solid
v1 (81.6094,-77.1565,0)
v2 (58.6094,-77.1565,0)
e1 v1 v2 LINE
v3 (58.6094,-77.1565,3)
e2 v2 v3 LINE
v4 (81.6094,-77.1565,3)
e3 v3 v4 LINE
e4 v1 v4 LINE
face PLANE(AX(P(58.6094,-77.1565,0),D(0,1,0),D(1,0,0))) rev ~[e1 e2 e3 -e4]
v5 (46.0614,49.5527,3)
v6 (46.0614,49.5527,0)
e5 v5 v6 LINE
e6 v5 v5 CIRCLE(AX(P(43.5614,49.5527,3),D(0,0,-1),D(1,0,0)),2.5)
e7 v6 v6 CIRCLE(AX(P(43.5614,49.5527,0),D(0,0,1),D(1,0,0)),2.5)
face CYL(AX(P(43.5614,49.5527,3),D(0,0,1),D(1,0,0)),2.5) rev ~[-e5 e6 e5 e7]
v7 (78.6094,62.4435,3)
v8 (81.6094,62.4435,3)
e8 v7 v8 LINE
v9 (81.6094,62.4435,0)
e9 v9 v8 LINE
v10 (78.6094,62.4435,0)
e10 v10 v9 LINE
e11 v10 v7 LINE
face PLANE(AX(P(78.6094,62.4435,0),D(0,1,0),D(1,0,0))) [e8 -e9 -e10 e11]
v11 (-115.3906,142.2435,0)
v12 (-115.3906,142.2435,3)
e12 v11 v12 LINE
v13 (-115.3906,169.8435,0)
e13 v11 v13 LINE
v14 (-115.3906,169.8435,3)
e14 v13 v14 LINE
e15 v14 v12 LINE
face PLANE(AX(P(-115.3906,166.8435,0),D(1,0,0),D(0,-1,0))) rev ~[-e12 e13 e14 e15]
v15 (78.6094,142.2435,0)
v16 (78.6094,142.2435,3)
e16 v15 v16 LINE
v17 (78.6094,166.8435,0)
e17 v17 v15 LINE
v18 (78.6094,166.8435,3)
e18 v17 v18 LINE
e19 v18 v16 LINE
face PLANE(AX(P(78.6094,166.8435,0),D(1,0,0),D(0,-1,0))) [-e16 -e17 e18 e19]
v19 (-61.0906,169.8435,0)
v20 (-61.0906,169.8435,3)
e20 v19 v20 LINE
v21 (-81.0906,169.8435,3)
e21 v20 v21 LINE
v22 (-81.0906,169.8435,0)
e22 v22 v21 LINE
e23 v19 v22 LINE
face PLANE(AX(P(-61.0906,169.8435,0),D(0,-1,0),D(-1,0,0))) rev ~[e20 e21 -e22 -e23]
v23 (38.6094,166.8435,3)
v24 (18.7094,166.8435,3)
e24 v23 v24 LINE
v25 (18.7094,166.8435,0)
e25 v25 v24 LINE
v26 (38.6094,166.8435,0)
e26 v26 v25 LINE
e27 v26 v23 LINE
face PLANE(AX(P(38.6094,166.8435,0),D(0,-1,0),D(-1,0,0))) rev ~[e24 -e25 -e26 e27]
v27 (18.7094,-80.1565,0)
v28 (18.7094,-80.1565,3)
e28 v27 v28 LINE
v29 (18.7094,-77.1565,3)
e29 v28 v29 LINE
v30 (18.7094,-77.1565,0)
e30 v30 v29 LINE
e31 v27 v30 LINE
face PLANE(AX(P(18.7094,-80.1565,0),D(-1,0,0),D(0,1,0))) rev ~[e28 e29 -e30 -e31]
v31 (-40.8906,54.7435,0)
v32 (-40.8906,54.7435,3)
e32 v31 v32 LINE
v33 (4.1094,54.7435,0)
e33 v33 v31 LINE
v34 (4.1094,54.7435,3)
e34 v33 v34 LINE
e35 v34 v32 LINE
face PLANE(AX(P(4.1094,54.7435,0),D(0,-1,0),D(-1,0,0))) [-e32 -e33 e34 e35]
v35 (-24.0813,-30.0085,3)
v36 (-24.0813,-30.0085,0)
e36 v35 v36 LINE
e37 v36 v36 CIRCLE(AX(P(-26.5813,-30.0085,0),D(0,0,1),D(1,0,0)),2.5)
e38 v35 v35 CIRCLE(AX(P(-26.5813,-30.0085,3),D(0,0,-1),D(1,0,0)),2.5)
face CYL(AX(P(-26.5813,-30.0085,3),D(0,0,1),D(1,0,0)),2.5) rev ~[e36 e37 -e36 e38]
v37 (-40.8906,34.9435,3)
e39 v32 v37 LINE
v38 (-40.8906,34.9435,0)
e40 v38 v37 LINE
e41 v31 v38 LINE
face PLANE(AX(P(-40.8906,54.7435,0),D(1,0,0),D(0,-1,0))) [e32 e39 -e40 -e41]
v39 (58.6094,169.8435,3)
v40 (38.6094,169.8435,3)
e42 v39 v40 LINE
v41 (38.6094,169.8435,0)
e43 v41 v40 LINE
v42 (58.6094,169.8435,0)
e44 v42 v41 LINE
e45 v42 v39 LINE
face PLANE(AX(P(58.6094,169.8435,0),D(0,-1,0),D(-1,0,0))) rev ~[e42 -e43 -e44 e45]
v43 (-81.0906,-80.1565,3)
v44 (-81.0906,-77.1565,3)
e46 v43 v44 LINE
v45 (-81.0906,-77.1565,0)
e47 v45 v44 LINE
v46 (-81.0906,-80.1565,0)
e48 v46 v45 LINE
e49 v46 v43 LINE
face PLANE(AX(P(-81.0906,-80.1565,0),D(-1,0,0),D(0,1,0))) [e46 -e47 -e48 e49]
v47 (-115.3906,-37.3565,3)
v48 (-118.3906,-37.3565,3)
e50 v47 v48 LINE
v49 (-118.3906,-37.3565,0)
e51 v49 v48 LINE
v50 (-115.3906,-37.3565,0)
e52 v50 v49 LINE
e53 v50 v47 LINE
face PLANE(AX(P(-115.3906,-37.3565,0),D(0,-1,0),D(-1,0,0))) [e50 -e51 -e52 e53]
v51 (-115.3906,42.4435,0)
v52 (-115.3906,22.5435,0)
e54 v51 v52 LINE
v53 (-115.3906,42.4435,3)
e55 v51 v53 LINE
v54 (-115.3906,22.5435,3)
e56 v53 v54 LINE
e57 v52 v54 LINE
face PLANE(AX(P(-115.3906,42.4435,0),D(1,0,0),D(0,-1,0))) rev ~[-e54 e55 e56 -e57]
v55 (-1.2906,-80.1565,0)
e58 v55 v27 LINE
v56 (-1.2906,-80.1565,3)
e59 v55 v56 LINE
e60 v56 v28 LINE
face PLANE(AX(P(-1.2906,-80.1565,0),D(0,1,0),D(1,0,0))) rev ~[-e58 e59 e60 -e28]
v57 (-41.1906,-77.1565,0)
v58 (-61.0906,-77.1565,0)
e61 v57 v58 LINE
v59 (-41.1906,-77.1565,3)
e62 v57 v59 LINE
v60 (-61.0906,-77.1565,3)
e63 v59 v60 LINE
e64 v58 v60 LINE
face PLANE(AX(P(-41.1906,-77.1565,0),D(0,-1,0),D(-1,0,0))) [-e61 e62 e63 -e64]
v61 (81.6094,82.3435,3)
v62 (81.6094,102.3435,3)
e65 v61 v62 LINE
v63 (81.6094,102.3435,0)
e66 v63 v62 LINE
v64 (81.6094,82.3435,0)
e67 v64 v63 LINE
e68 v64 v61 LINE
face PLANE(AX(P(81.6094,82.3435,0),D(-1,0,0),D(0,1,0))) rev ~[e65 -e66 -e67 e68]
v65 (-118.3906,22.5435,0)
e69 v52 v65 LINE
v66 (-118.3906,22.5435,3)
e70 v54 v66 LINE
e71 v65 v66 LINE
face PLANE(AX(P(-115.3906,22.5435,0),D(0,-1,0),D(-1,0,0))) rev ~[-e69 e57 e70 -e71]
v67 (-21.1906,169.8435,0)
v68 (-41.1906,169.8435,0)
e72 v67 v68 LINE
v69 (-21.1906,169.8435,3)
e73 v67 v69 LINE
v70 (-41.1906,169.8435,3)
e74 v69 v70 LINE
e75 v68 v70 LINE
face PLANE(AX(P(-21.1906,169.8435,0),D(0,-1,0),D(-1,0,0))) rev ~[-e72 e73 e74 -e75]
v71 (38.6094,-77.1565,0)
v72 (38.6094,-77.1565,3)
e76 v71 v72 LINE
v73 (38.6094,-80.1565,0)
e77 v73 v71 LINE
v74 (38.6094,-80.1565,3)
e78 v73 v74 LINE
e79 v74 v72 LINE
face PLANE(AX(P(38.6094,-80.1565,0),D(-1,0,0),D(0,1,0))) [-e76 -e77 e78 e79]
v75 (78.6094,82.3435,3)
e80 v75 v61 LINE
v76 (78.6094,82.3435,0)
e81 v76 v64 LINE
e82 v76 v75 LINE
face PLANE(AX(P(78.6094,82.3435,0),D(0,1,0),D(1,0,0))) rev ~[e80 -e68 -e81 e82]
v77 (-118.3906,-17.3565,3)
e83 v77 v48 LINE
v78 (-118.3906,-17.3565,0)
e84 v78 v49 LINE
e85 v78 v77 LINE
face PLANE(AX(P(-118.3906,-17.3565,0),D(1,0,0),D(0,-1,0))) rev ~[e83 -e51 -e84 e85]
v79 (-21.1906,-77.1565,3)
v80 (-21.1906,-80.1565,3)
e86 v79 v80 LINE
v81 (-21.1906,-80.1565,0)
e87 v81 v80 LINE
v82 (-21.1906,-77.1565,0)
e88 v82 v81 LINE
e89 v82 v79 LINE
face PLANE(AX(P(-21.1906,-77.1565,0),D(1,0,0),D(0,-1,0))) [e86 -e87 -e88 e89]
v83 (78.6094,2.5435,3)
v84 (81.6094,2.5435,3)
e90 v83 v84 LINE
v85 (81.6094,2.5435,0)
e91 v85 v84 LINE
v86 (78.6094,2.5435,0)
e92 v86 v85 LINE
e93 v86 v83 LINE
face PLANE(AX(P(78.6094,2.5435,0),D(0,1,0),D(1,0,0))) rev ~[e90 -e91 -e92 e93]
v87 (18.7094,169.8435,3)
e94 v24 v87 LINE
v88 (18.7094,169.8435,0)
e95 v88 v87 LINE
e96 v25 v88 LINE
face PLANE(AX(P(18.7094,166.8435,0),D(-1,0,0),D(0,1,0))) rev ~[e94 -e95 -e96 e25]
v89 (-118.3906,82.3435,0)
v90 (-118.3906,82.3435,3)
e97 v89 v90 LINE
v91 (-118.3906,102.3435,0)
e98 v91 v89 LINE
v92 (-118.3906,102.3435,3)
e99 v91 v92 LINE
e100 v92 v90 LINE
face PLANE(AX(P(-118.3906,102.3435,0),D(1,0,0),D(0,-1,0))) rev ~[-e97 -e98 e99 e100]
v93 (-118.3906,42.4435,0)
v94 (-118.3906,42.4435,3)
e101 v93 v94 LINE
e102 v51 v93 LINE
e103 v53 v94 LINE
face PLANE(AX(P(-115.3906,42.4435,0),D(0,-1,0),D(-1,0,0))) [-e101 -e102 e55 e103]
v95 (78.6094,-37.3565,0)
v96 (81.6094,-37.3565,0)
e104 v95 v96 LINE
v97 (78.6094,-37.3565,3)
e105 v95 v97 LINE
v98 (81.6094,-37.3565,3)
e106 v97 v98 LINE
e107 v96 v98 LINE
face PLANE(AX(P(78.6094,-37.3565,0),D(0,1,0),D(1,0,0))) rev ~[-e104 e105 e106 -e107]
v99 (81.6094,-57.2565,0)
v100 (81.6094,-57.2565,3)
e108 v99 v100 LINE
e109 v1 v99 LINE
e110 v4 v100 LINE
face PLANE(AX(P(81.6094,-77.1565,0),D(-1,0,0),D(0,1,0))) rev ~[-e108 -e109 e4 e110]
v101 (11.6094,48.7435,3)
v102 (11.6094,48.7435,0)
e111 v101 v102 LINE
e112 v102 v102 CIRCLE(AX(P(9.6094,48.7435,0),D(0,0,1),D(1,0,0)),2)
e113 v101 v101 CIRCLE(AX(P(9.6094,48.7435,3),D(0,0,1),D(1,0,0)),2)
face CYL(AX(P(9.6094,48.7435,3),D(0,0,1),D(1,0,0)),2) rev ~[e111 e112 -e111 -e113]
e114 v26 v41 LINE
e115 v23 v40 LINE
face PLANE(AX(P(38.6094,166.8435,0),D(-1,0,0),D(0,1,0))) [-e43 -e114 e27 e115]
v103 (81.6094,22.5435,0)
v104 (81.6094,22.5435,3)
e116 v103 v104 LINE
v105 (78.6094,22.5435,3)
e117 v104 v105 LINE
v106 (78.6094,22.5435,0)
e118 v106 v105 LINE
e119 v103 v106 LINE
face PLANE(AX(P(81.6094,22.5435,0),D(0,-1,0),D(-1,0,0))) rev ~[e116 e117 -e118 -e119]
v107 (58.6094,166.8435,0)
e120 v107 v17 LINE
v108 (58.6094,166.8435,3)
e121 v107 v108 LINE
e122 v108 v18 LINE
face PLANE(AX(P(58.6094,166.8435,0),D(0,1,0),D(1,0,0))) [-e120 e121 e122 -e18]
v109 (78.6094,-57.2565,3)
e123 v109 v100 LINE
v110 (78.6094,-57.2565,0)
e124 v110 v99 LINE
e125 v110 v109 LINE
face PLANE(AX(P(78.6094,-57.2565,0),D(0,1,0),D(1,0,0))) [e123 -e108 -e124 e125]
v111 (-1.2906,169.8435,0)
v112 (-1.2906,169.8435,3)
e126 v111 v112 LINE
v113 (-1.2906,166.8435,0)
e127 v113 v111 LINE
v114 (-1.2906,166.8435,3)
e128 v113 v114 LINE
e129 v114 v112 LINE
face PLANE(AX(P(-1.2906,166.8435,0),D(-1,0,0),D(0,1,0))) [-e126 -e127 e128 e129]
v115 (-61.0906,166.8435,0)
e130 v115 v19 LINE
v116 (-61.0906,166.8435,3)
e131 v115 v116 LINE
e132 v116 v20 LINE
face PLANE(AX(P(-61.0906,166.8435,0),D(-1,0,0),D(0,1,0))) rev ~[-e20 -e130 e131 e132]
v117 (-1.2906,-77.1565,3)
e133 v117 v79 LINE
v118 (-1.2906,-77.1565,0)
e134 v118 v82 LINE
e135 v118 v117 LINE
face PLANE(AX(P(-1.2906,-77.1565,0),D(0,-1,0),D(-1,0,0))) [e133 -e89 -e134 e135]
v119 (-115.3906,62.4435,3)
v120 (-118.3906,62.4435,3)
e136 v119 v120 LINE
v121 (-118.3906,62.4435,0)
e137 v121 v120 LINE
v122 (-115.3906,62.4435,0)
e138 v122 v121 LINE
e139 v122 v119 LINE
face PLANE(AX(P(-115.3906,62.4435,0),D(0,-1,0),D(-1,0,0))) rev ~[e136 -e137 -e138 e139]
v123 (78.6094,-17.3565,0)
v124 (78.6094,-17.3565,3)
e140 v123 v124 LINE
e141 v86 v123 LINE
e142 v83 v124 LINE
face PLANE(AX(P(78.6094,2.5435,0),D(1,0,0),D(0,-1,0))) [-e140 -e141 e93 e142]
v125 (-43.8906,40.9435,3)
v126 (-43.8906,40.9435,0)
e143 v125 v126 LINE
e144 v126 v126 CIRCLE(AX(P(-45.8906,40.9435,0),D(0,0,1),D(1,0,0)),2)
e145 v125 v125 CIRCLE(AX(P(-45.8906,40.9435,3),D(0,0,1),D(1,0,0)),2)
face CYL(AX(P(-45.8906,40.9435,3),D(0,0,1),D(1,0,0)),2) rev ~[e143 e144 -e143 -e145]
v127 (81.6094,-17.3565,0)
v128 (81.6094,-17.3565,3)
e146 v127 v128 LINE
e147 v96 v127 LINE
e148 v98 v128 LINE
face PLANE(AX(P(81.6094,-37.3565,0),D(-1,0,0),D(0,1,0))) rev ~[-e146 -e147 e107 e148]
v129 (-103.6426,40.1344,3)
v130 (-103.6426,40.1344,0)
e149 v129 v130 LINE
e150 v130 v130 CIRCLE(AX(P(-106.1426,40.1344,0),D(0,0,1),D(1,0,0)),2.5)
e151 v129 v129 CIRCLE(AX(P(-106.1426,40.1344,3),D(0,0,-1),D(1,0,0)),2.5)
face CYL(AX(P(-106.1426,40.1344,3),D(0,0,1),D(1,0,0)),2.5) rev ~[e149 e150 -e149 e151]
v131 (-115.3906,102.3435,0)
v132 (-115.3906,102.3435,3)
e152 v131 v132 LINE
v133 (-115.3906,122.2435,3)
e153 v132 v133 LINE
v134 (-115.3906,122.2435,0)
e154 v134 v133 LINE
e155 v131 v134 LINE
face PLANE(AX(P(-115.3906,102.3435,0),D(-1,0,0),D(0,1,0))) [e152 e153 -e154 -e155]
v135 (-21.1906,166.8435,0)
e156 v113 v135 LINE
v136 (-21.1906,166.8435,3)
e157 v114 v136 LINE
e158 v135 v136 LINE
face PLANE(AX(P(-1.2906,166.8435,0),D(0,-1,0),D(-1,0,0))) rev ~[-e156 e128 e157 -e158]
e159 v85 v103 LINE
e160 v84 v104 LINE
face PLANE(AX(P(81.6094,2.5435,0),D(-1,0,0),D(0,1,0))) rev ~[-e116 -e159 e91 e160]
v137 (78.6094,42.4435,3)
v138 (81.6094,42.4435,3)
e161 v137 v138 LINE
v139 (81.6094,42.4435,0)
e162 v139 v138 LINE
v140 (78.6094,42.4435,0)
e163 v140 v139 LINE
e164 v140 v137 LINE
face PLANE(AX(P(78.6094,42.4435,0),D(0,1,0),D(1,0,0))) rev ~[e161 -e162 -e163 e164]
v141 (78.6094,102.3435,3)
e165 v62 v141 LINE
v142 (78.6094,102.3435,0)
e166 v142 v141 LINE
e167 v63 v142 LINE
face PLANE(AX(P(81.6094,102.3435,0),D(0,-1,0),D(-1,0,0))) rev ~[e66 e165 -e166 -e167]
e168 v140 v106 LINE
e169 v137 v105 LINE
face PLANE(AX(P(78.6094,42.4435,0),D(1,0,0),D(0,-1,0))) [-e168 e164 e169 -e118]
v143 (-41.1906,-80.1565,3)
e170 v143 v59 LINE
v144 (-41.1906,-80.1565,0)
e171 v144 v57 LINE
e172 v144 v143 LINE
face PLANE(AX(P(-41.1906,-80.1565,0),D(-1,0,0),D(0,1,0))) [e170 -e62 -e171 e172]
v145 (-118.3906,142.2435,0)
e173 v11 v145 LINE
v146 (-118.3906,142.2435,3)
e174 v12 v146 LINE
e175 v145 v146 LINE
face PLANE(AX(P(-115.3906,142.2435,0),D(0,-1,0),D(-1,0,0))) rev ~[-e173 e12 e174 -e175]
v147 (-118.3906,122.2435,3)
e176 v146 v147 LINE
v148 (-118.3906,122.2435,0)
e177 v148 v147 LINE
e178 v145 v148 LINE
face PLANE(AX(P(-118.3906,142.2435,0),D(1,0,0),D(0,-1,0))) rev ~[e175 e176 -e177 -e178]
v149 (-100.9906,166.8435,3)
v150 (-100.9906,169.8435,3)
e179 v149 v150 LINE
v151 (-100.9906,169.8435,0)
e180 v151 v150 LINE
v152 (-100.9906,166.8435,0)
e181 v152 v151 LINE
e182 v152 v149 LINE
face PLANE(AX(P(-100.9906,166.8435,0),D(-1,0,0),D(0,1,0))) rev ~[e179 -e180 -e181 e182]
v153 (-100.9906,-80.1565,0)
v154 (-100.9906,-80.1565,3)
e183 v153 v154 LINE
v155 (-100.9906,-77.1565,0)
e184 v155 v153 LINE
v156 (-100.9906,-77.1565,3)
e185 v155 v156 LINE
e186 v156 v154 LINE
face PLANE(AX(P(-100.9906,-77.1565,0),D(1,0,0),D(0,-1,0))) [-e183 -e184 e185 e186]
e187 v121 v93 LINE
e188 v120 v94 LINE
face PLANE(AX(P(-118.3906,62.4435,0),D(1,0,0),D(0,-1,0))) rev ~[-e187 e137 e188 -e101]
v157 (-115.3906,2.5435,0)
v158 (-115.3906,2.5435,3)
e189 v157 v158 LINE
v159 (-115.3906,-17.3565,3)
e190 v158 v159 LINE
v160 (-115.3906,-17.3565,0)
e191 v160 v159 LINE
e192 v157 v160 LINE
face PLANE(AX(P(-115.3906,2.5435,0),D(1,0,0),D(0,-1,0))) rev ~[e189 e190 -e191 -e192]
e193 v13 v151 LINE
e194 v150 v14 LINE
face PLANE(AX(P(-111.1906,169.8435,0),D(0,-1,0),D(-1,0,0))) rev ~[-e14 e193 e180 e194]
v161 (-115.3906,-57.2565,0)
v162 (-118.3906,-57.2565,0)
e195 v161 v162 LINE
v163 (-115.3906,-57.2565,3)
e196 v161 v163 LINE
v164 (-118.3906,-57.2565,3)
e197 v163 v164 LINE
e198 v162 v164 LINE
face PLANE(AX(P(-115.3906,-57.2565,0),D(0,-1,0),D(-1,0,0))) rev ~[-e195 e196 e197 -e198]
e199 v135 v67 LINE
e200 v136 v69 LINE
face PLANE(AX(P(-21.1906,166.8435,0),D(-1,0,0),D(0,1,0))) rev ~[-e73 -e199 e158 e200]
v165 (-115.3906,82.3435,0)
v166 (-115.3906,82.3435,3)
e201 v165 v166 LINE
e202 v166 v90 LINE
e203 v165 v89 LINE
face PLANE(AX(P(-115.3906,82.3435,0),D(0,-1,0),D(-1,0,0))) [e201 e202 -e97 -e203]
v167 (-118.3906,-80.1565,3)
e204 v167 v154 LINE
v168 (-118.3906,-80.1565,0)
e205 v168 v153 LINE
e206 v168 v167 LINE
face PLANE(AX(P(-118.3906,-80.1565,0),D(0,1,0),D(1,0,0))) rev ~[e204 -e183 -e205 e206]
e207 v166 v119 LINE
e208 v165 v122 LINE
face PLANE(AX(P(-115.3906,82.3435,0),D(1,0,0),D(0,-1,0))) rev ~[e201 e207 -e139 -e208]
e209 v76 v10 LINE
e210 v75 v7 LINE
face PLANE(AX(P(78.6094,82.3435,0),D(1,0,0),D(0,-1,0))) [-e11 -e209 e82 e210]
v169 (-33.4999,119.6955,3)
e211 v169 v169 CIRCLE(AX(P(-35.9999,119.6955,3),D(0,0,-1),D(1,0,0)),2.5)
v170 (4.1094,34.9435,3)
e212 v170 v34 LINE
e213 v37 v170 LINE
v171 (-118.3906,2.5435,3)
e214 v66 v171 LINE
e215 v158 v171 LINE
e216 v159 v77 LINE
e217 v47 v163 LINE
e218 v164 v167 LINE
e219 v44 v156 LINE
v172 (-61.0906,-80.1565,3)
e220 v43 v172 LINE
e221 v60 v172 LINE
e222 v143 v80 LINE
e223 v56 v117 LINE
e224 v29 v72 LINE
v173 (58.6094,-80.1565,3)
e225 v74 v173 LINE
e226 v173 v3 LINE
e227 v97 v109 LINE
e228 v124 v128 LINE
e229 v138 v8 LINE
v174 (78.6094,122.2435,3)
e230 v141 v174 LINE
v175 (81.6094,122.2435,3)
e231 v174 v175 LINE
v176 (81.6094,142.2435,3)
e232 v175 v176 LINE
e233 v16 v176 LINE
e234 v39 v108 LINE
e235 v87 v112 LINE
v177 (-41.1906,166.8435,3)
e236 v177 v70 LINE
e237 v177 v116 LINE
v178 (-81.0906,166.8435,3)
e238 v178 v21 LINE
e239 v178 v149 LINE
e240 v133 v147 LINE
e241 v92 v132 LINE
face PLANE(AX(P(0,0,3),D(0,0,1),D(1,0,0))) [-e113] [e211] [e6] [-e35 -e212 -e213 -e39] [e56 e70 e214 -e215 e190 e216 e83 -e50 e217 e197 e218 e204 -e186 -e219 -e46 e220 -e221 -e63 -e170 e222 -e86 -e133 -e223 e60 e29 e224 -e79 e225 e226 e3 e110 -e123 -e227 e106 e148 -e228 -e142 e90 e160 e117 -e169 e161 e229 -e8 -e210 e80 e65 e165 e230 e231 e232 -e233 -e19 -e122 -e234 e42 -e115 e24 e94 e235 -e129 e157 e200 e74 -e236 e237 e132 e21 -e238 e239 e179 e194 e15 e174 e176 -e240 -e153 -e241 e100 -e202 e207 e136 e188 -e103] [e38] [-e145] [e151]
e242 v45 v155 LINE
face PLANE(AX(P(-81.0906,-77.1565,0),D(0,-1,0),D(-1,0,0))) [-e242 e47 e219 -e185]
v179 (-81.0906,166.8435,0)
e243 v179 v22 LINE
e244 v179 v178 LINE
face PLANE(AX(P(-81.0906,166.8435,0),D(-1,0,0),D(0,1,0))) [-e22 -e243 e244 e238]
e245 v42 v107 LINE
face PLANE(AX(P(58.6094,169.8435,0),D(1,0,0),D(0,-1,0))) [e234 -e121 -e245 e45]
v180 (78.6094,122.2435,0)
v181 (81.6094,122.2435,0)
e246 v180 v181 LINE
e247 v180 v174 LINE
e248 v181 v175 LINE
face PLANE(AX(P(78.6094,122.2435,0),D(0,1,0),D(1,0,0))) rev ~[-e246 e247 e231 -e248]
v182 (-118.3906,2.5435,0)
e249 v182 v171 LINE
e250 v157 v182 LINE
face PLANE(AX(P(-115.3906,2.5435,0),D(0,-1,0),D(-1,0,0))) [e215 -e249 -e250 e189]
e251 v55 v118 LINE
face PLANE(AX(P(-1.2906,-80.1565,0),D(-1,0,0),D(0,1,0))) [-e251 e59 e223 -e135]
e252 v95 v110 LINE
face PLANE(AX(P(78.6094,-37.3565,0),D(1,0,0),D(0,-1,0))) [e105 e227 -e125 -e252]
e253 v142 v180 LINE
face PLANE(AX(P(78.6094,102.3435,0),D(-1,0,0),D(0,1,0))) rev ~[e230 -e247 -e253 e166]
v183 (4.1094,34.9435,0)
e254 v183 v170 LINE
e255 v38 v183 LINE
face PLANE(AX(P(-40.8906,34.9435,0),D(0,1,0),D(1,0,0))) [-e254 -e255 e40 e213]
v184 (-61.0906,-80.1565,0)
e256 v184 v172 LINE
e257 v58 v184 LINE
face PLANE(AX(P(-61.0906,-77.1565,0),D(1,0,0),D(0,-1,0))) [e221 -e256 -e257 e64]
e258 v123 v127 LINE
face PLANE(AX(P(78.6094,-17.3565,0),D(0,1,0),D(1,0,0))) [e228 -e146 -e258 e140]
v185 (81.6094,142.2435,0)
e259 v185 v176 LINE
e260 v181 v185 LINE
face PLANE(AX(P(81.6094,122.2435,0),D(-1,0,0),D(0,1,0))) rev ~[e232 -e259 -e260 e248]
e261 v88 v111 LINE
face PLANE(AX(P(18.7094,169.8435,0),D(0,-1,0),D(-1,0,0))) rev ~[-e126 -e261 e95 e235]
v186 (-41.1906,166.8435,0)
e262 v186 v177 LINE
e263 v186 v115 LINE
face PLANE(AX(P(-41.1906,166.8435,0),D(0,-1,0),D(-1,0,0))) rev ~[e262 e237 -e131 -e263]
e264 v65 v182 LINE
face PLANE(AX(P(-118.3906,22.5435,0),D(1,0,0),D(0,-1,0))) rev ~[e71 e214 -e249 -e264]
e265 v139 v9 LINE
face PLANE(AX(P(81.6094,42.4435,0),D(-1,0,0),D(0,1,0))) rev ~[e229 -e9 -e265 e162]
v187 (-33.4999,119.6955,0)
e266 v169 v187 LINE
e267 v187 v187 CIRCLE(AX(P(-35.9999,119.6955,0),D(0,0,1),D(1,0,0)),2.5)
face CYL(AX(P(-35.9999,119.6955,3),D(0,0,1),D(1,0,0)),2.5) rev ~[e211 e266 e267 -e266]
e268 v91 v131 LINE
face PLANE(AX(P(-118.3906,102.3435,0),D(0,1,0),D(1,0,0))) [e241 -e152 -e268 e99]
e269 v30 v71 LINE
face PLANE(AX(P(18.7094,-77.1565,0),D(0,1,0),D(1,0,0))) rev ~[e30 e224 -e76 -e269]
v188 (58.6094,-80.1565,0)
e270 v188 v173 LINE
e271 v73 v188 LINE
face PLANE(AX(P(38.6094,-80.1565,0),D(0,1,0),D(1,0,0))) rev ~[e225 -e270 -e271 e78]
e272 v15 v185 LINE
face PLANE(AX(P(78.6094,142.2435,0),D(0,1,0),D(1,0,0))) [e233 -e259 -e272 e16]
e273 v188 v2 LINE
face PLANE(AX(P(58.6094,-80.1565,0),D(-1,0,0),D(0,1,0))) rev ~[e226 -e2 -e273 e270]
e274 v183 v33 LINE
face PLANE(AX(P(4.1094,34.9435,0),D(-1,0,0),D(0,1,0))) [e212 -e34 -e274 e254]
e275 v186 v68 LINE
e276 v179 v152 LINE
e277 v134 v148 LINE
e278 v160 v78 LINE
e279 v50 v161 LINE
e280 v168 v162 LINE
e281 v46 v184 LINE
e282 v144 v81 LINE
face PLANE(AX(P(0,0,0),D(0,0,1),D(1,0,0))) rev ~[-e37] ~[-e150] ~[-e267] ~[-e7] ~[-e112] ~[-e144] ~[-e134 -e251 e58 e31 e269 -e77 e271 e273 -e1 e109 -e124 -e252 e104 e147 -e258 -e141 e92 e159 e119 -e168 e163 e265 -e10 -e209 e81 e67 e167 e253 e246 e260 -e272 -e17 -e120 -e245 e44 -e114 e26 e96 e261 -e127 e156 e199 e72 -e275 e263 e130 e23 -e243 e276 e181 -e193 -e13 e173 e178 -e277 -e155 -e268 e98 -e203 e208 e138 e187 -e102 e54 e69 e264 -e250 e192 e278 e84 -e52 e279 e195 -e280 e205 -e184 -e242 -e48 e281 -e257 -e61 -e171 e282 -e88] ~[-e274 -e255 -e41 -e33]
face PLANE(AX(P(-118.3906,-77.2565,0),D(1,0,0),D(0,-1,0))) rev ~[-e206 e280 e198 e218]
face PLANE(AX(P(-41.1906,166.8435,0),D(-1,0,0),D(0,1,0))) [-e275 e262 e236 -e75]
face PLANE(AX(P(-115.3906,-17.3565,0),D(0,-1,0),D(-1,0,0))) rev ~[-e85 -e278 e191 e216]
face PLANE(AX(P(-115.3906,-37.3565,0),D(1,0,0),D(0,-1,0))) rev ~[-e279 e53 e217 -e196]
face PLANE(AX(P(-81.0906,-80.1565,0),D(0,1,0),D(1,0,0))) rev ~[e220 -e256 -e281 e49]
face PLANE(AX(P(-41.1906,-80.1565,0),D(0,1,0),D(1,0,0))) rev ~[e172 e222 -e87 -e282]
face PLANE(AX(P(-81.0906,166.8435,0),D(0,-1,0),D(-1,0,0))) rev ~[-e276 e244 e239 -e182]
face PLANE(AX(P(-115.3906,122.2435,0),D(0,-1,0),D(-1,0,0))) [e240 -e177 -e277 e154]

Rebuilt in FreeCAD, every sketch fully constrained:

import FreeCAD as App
import Part
import Sketcher
Q = App.Units.Quantity

doc = App.newDocument("Part")
body = doc.addObject("PartDesign::Body", "Body")

# Sketch on XY plane
sketch1 = body.newObject("Sketcher::SketchObject", "Sketch")
sketch1.AttachmentSupport = (doc.getObject("XY_Plane"), [""])
sketch1.MapMode = "FlatFace"
sketch1.addGeometry(Part.LineSegment(App.Vector(58.6, 166.8, 0), App.Vector(58.6, 169.8, 0)), False)
sketch1.addGeometry(Part.LineSegment(App.Vector(58.6, 169.8, 0), App.Vector(38.6, 169.8, 0)), False)
sketch1.addGeometry(Part.LineSegment(App.Vector(38.6, 169.8, 0), App.Vector(38.6, 166.8, 0)), False)
sketch1.addGeometry(Part.LineSegment(App.Vector(38.6, 166.8, 0), App.Vector(18.7, 166.8, 0)), False)
sketch1.addGeometry(Part.LineSegment(App.Vector(18.7, 166.8, 0), App.Vector(18.7, 169.8, 0)), False)
sketch1.addGeometry(Part.LineSegment(App.Vector(18.7, 169.8, 0), App.Vector(-1.3, 169.8, 0)), False)
sketch1.addGeometry(Part.LineSegment(App.Vector(-1.3, 169.8, 0), App.Vector(-1.3, 166.8, 0)), False)
sketch1.addGeometry(Part.LineSegment(App.Vector(-1.3, 166.8, 0), App.Vector(-21.2, 166.8, 0)), False)
sketch1.addGeometry(Part.LineSegment(App.Vector(-21.2, 166.8, 0), App.Vector(-21.2, 169.8, 0)), False)
sketch1.addGeometry(Part.LineSegment(App.Vector(-21.2, 169.8, 0), App.Vector(-41.2, 169.8, 0)), False)
sketch1.addGeometry(Part.LineSegment(App.Vector(-41.2, 169.8, 0), App.Vector(-41.2, 166.8, 0)), False)
sketch1.addGeometry(Part.LineSegment(App.Vector(-41.2, 166.8, 0), App.Vector(-61.1, 166.8, 0)), False)
sketch1.addGeometry(Part.LineSegment(App.Vector(-61.1, 166.8, 0), App.Vector(-61.1, 169.8, 0)), False)
sketch1.addGeometry(Part.LineSegment(App.Vector(-61.1, 169.8, 0), App.Vector(-81.1, 169.8, 0)), False)
sketch1.addGeometry(Part.LineSegment(App.Vector(-81.1, 169.8, 0), App.Vector(-81.1, 166.8, 0)), False)
sketch1.addGeometry(Part.LineSegment(App.Vector(-81.1, 166.8, 0), App.Vector(-101, 166.8, 0)), False)
sketch1.addGeometry(Part.LineSegment(App.Vector(-101, 166.8, 0), App.Vector(-101, 169.8, 0)), False)
sketch1.addGeometry(Part.LineSegment(App.Vector(-101, 169.8, 0), App.Vector(-115.4, 169.8, 0)), False)
sketch1.addGeometry(Part.LineSegment(App.Vector(-115.4, 169.8, 0), App.Vector(-115.4, 142.2, 0)), False)
sketch1.addGeometry(Part.LineSegment(App.Vector(-115.4, 142.2, 0), App.Vector(-118.4, 142.2, 0)), False)
sketch1.addGeometry(Part.LineSegment(App.Vector(-118.4, 142.2, 0), App.Vector(-118.4, 122.2, 0)), False)
sketch1.addGeometry(Part.LineSegment(App.Vector(-118.4, 122.2, 0), App.Vector(-115.4, 122.2, 0)), False)
sketch1.addGeometry(Part.LineSegment(App.Vector(-115.4, 122.2, 0), App.Vector(-115.4, 102.3, 0)), False)
sketch1.addGeometry(Part.LineSegment(App.Vector(-115.4, 102.3, 0), App.Vector(-118.4, 102.3, 0)), False)
sketch1.addGeometry(Part.LineSegment(App.Vector(-118.4, 102.3, 0), App.Vector(-118.4, 82.3, 0)), False)
sketch1.addGeometry(Part.LineSegment(App.Vector(-118.4, 82.3, 0), App.Vector(-115.4, 82.3, 0)), False)
sketch1.addGeometry(Part.LineSegment(App.Vector(-115.4, 82.3, 0), App.Vector(-115.4, 62.4, 0)), False)
sketch1.addGeometry(Part.LineSegment(App.Vector(-115.4, 62.4, 0), App.Vector(-118.4, 62.4, 0)), False)
sketch1.addGeometry(Part.LineSegment(App.Vector(-118.4, 62.4, 0), App.Vector(-118.4, 42.4, 0)), False)
sketch1.addGeometry(Part.LineSegment(App.Vector(-118.4, 42.4, 0), App.Vector(-115.4, 42.4, 0)), False)
sketch1.addGeometry(Part.LineSegment(App.Vector(-115.4, 42.4, 0), App.Vector(-115.4, 22.5, 0)), False)
sketch1.addGeometry(Part.LineSegment(App.Vector(-115.4, 22.5, 0), App.Vector(-118.4, 22.5, 0)), False)
sketch1.addGeometry(Part.LineSegment(App.Vector(-118.4, 22.5, 0), App.Vector(-118.4, 2.5, 0)), False)
sketch1.addGeometry(Part.LineSegment(App.Vector(-118.4, 2.5, 0), App.Vector(-115.4, 2.5, 0)), False)
sketch1.addGeometry(Part.LineSegment(App.Vector(-115.4, 2.5, 0), App.Vector(-115.4, -17.4, 0)), False)
sketch1.addGeometry(Part.LineSegment(App.Vector(-115.4, -17.4, 0), App.Vector(-118.4, -17.4, 0)), False)
sketch1.addGeometry(Part.LineSegment(App.Vector(-118.4, -17.4, 0), App.Vector(-118.4, -37.4, 0)), False)
sketch1.addGeometry(Part.LineSegment(App.Vector(-118.4, -37.4, 0), App.Vector(-115.4, -37.4, 0)), False)
sketch1.addGeometry(Part.LineSegment(App.Vector(-115.4, -37.4, 0), App.Vector(-115.4, -57.3, 0)), False)
sketch1.addGeometry(Part.LineSegment(App.Vector(-115.4, -57.3, 0), App.Vector(-118.4, -57.3, 0)), False)
sketch1.addGeometry(Part.LineSegment(App.Vector(-118.4, -57.3, 0), App.Vector(-118.4, -80.2, 0)), False)
sketch1.addGeometry(Part.LineSegment(App.Vector(-118.4, -80.2, 0), App.Vector(-101, -80.2, 0)), False)
sketch1.addGeometry(Part.LineSegment(App.Vector(-101, -80.2, 0), App.Vector(-101, -77.2, 0)), False)
sketch1.addGeometry(Part.LineSegment(App.Vector(-101, -77.2, 0), App.Vector(-81.1, -77.2, 0)), False)
sketch1.addGeometry(Part.LineSegment(App.Vector(-81.1, -77.2, 0), App.Vector(-81.1, -80.2, 0)), False)
sketch1.addGeometry(Part.LineSegment(App.Vector(-81.1, -80.2, 0), App.Vector(-61.1, -80.2, 0)), False)
sketch1.addGeometry(Part.LineSegment(App.Vector(-61.1, -80.2, 0), App.Vector(-61.1, -77.2, 0)), False)
sketch1.addGeometry(Part.LineSegment(App.Vector(-61.1, -77.2, 0), App.Vector(-41.2, -77.2, 0)), False)
sketch1.addGeometry(Part.LineSegment(App.Vector(-41.2, -77.2, 0), App.Vector(-41.2, -80.2, 0)), False)
sketch1.addGeometry(Part.LineSegment(App.Vector(-41.2, -80.2, 0), App.Vector(-21.2, -80.2, 0)), False)
sketch1.addGeometry(Part.LineSegment(App.Vector(-21.2, -80.2, 0), App.Vector(-21.2, -77.2, 0)), False)
sketch1.addGeometry(Part.LineSegment(App.Vector(-21.2, -77.2, 0), App.Vector(-1.3, -77.2, 0)), False)
sketch1.addGeometry(Part.LineSegment(App.Vector(-1.3, -77.2, 0), App.Vector(-1.3, -80.2, 0)), False)
sketch1.addGeometry(Part.LineSegment(App.Vector(-1.3, -80.2, 0), App.Vector(18.7, -80.2, 0)), False)
sketch1.addGeometry(Part.LineSegment(App.Vector(18.7, -80.2, 0), App.Vector(18.7, -77.2, 0)), False)
sketch1.addGeometry(Part.LineSegment(App.Vector(18.7, -77.2, 0), App.Vector(38.6, -77.2, 0)), False)
sketch1.addGeometry(Part.LineSegment(App.Vector(38.6, -77.2, 0), App.Vector(38.6, -80.2, 0)), False)
sketch1.addGeometry(Part.LineSegment(App.Vector(38.6, -80.2, 0), App.Vector(58.6, -80.2, 0)), False)
sketch1.addGeometry(Part.LineSegment(App.Vector(58.6, -80.2, 0), App.Vector(58.6, -77.2, 0)), False)
sketch1.addGeometry(Part.LineSegment(App.Vector(58.6, -77.2, 0), App.Vector(81.6, -77.2, 0)), False)
sketch1.addGeometry(Part.LineSegment(App.Vector(81.6, -77.2, 0), App.Vector(81.6, -57.3, 0)), False)
sketch1.addGeometry(Part.LineSegment(App.Vector(81.6, -57.3, 0), App.Vector(78.6, -57.3, 0)), False)
sketch1.addGeometry(Part.LineSegment(App.Vector(78.6, -57.3, 0), App.Vector(78.6, -37.4, 0)), False)
sketch1.addGeometry(Part.LineSegment(App.Vector(78.6, -37.4, 0), App.Vector(81.6, -37.4, 0)), False)
sketch1.addGeometry(Part.LineSegment(App.Vector(81.6, -37.4, 0), App.Vector(81.6, -17.4, 0)), False)
sketch1.addGeometry(Part.LineSegment(App.Vector(81.6, -17.4, 0), App.Vector(78.6, -17.4, 0)), False)
sketch1.addGeometry(Part.LineSegment(App.Vector(78.6, -17.4, 0), App.Vector(78.6, 2.5, 0)), False)
sketch1.addGeometry(Part.LineSegment(App.Vector(78.6, 2.5, 0), App.Vector(81.6, 2.5, 0)), False)
sketch1.addGeometry(Part.LineSegment(App.Vector(81.6, 2.5, 0), App.Vector(81.6, 22.5, 0)), False)
sketch1.addGeometry(Part.LineSegment(App.Vector(81.6, 22.5, 0), App.Vector(78.6, 22.5, 0)), False)
sketch1.addGeometry(Part.LineSegment(App.Vector(78.6, 22.5, 0), App.Vector(78.6, 42.4, 0)), False)
sketch1.addGeometry(Part.LineSegment(App.Vector(78.6, 42.4, 0), App.Vector(81.6, 42.4, 0)), False)
sketch1.addGeometry(Part.LineSegment(App.Vector(81.6, 42.4, 0), App.Vector(81.6, 62.4, 0)), False)
sketch1.addGeometry(Part.LineSegment(App.Vector(81.6, 62.4, 0), App.Vector(78.6, 62.4, 0)), False)
sketch1.addGeometry(Part.LineSegment(App.Vector(78.6, 62.4, 0), App.Vector(78.6, 82.3, 0)), False)
sketch1.addGeometry(Part.LineSegment(App.Vector(78.6, 82.3, 0), App.Vector(81.6, 82.3, 0)), False)
sketch1.addGeometry(Part.LineSegment(App.Vector(81.6, 82.3, 0), App.Vector(81.6, 102.3, 0)), False)
sketch1.addGeometry(Part.LineSegment(App.Vector(81.6, 102.3, 0), App.Vector(78.6, 102.3, 0)), False)
sketch1.addGeometry(Part.LineSegment(App.Vector(78.6, 102.3, 0), App.Vector(78.6, 122.2, 0)), False)
sketch1.addGeometry(Part.LineSegment(App.Vector(78.6, 122.2, 0), App.Vector(81.6, 122.2, 0)), False)
sketch1.addGeometry(Part.LineSegment(App.Vector(81.6, 122.2, 0), App.Vector(81.6, 142.2, 0)), False)
sketch1.addGeometry(Part.LineSegment(App.Vector(81.6, 142.2, 0), App.Vector(78.6, 142.2, 0)), False)
sketch1.addGeometry(Part.LineSegment(App.Vector(78.6, 142.2, 0), App.Vector(78.6, 166.8, 0)), False)
sketch1.addGeometry(Part.LineSegment(App.Vector(78.6, 166.8, 0), App.Vector(58.6, 166.8, 0)), False)
sketch1.addConstraint(Sketcher.Constraint("Coincident", 0, 2, 1, 1))
sketch1.addConstraint(Sketcher.Constraint("Coincident", 1, 2, 2, 1))
sketch1.addConstraint(Sketcher.Constraint("Coincident", 2, 2, 3, 1))
sketch1.addConstraint(Sketcher.Constraint("Coincident", 3, 2, 4, 1))
sketch1.addConstraint(Sketcher.Constraint("Coincident", 4, 2, 5, 1))
sketch1.addConstraint(Sketcher.Constraint("Coincident", 5, 2, 6, 1))
sketch1.addConstraint(Sketcher.Constraint("Coincident", 6, 2, 7, 1))
sketch1.addConstraint(Sketcher.Constraint("Coincident", 7, 2, 8, 1))
sketch1.addConstraint(Sketcher.Constraint("Coincident", 8, 2, 9, 1))
sketch1.addConstraint(Sketcher.Constraint("Coincident", 9, 2, 10, 1))
sketch1.addConstraint(Sketcher.Constraint("Coincident", 10, 2, 11, 1))
sketch1.addConstraint(Sketcher.Constraint("Coincident", 11, 2, 12, 1))
sketch1.addConstraint(Sketcher.Constraint("Coincident", 12, 2, 13, 1))
sketch1.addConstraint(Sketcher.Constraint("Coincident", 13, 2, 14, 1))
sketch1.addConstraint(Sketcher.Constraint("Coincident", 14, 2, 15, 1))
sketch1.addConstraint(Sketcher.Constraint("Coincident", 15, 2, 16, 1))
sketch1.addConstraint(Sketcher.Constraint("Coincident", 16, 2, 17, 1))
sketch1.addConstraint(Sketcher.Constraint("Coincident", 17, 2, 18, 1))
sketch1.addConstraint(Sketcher.Constraint("Coincident", 18, 2, 19, 1))
sketch1.addConstraint(Sketcher.Constraint("Coincident", 19, 2, 20, 1))
sketch1.addConstraint(Sketcher.Constraint("Coincident", 20, 2, 21, 1))
sketch1.addConstraint(Sketcher.Constraint("Coincident", 21, 2, 22, 1))
sketch1.addConstraint(Sketcher.Constraint("Coincident", 22, 2, 23, 1))
sketch1.addConstraint(Sketcher.Constraint("Coincident", 23, 2, 24, 1))
sketch1.addConstraint(Sketcher.Constraint("Coincident", 24, 2, 25, 1))
sketch1.addConstraint(Sketcher.Constraint("Coincident", 25, 2, 26, 1))
sketch1.addConstraint(Sketcher.Constraint("Coincident", 26, 2, 27, 1))
sketch1.addConstraint(Sketcher.Constraint("Coincident", 27, 2, 28, 1))
sketch1.addConstraint(Sketcher.Constraint("Coincident", 28, 2, 29, 1))
sketch1.addConstraint(Sketcher.Constraint("Coincident", 29, 2, 30, 1))
sketch1.addConstraint(Sketcher.Constraint("Coincident", 30, 2, 31, 1))
sketch1.addConstraint(Sketcher.Constraint("Coincident", 31, 2, 32, 1))
sketch1.addConstraint(Sketcher.Constraint("Coincident", 32, 2, 33, 1))
sketch1.addConstraint(Sketcher.Constraint("Coincident", 33, 2, 34, 1))
sketch1.addConstraint(Sketcher.Constraint("Coincident", 34, 2, 35, 1))
sketch1.addConstraint(Sketcher.Constraint("Coincident", 35, 2, 36, 1))
sketch1.addConstraint(Sketcher.Constraint("Coincident", 36, 2, 37, 1))
sketch1.addConstraint(Sketcher.Constraint("Coincident", 37, 2, 38, 1))
sketch1.addConstraint(Sketcher.Constraint("Coincident", 38, 2, 39, 1))
sketch1.addConstraint(Sketcher.Constraint("Coincident", 39, 2, 40, 1))
sketch1.addConstraint(Sketcher.Constraint("Coincident", 40, 2, 41, 1))
sketch1.addConstraint(Sketcher.Constraint("Coincident", 41, 2, 42, 1))
sketch1.addConstraint(Sketcher.Constraint("Coincident", 42, 2, 43, 1))
sketch1.addConstraint(Sketcher.Constraint("Coincident", 43, 2, 44, 1))
sketch1.addConstraint(Sketcher.Constraint("Coincident", 44, 2, 45, 1))
sketch1.addConstraint(Sketcher.Constraint("Coincident", 45, 2, 46, 1))
sketch1.addConstraint(Sketcher.Constraint("Coincident", 46, 2, 47, 1))
sketch1.addConstraint(Sketcher.Constraint("Coincident", 47, 2, 48, 1))
sketch1.addConstraint(Sketcher.Constraint("Coincident", 48, 2, 49, 1))
sketch1.addConstraint(Sketcher.Constraint("Coincident", 49, 2, 50, 1))
sketch1.addConstraint(Sketcher.Constraint("Coincident", 50, 2, 51, 1))
sketch1.addConstraint(Sketcher.Constraint("Coincident", 51, 2, 52, 1))
sketch1.addConstraint(Sketcher.Constraint("Coincident", 52, 2, 53, 1))
sketch1.addConstraint(Sketcher.Constraint("Coincident", 53, 2, 54, 1))
sketch1.addConstraint(Sketcher.Constraint("Coincident", 54, 2, 55, 1))
sketch1.addConstraint(Sketcher.Constraint("Coincident", 55, 2, 56, 1))
sketch1.addConstraint(Sketcher.Constraint("Coincident", 56, 2, 57, 1))
sketch1.addConstraint(Sketcher.Constraint("Coincident", 57, 2, 58, 1))
sketch1.addConstraint(Sketcher.Constraint("Coincident", 58, 2, 59, 1))
sketch1.addConstraint(Sketcher.Constraint("Coincident", 59, 2, 60, 1))
sketch1.addConstraint(Sketcher.Constraint("Coincident", 60, 2, 61, 1))
sketch1.addConstraint(Sketcher.Constraint("Coincident", 61, 2, 62, 1))
sketch1.addConstraint(Sketcher.Constraint("Coincident", 62, 2, 63, 1))
sketch1.addConstraint(Sketcher.Constraint("Coincident", 63, 2, 64, 1))
sketch1.addConstraint(Sketcher.Constraint("Coincident", 64, 2, 65, 1))
sketch1.addConstraint(Sketcher.Constraint("Coincident", 65, 2, 66, 1))
sketch1.addConstraint(Sketcher.Constraint("Coincident", 66, 2, 67, 1))
sketch1.addConstraint(Sketcher.Constraint("Coincident", 67, 2, 68, 1))
sketch1.addConstraint(Sketcher.Constraint("Coincident", 68, 2, 69, 1))
sketch1.addConstraint(Sketcher.Constraint("Coincident", 69, 2, 70, 1))
sketch1.addConstraint(Sketcher.Constraint("Coincident", 70, 2, 71, 1))
sketch1.addConstraint(Sketcher.Constraint("Coincident", 71, 2, 72, 1))
sketch1.addConstraint(Sketcher.Constraint("Coincident", 72, 2, 73, 1))
sketch1.addConstraint(Sketcher.Constraint("Coincident", 73, 2, 74, 1))
sketch1.addConstraint(Sketcher.Constraint("Coincident", 74, 2, 75, 1))
sketch1.addConstraint(Sketcher.Constraint("Coincident", 75, 2, 76, 1))
sketch1.addConstraint(Sketcher.Constraint("Coincident", 76, 2, 77, 1))
sketch1.addConstraint(Sketcher.Constraint("Coincident", 77, 2, 78, 1))
sketch1.addConstraint(Sketcher.Constraint("Coincident", 78, 2, 79, 1))
sketch1.addConstraint(Sketcher.Constraint("Coincident", 79, 2, 80, 1))
sketch1.addConstraint(Sketcher.Constraint("Coincident", 80, 2, 81, 1))
sketch1.addConstraint(Sketcher.Constraint("Coincident", 81, 2, 82, 1))
sketch1.addConstraint(Sketcher.Constraint("Coincident", 82, 2, 83, 1))
sketch1.addConstraint(Sketcher.Constraint("Coincident", 83, 2, 0, 1))
sketch1.addConstraint(Sketcher.Constraint("Vertical", 0))
sketch1.addConstraint(Sketcher.Constraint("Horizontal", 1))
sketch1.addConstraint(Sketcher.Constraint("Vertical", 2))
sketch1.addConstraint(Sketcher.Constraint("Horizontal", 3))
sketch1.addConstraint(Sketcher.Constraint("Vertical", 4))
sketch1.addConstraint(Sketcher.Constraint("Horizontal", 5))
sketch1.addConstraint(Sketcher.Constraint("Vertical", 6))
sketch1.addConstraint(Sketcher.Constraint("Horizontal", 7))
sketch1.addConstraint(Sketcher.Constraint("Vertical", 8))
sketch1.addConstraint(Sketcher.Constraint("Horizontal", 9))
sketch1.addConstraint(Sketcher.Constraint("Vertical", 10))
sketch1.addConstraint(Sketcher.Constraint("Horizontal", 11))
sketch1.addConstraint(Sketcher.Constraint("Vertical", 12))
sketch1.addConstraint(Sketcher.Constraint("Horizontal", 13))
sketch1.addConstraint(Sketcher.Constraint("Vertical", 14))
sketch1.addConstraint(Sketcher.Constraint("Horizontal", 15))
sketch1.addConstraint(Sketcher.Constraint("Vertical", 16))
sketch1.addConstraint(Sketcher.Constraint("Horizontal", 17))
sketch1.addConstraint(Sketcher.Constraint("Vertical", 18))
sketch1.addConstraint(Sketcher.Constraint("Horizontal", 19))
sketch1.addConstraint(Sketcher.Constraint("Vertical", 20))
sketch1.addConstraint(Sketcher.Constraint("Horizontal", 21))
sketch1.addConstraint(Sketcher.Constraint("Vertical", 22))
sketch1.addConstraint(Sketcher.Constraint("Horizontal", 23))
sketch1.addConstraint(Sketcher.Constraint("Vertical", 24))
sketch1.addConstraint(Sketcher.Constraint("Horizontal", 25))
sketch1.addConstraint(Sketcher.Constraint("Vertical", 26))
sketch1.addConstraint(Sketcher.Constraint("Horizontal", 27))
sketch1.addConstraint(Sketcher.Constraint("Vertical", 28))
sketch1.addConstraint(Sketcher.Constraint("Horizontal", 29))
sketch1.addConstraint(Sketcher.Constraint("Vertical", 30))
sketch1.addConstraint(Sketcher.Constraint("Horizontal", 31))
sketch1.addConstraint(Sketcher.Constraint("Vertical", 32))
sketch1.addConstraint(Sketcher.Constraint("Horizontal", 33))
sketch1.addConstraint(Sketcher.Constraint("Vertical", 34))
sketch1.addConstraint(Sketcher.Constraint("Horizontal", 35))
sketch1.addConstraint(Sketcher.Constraint("Vertical", 36))
sketch1.addConstraint(Sketcher.Constraint("Horizontal", 37))
sketch1.addConstraint(Sketcher.Constraint("Vertical", 38))
sketch1.addConstraint(Sketcher.Constraint("Horizontal", 39))
sketch1.addConstraint(Sketcher.Constraint("Vertical", 40))
sketch1.addConstraint(Sketcher.Constraint("Horizontal", 41))
sketch1.addConstraint(Sketcher.Constraint("Vertical", 42))
sketch1.addConstraint(Sketcher.Constraint("Horizontal", 43))
sketch1.addConstraint(Sketcher.Constraint("Vertical", 44))
sketch1.addConstraint(Sketcher.Constraint("Horizontal", 45))
sketch1.addConstraint(Sketcher.Constraint("Vertical", 46))
sketch1.addConstraint(Sketcher.Constraint("Horizontal", 47))
sketch1.addConstraint(Sketcher.Constraint("Vertical", 48))
sketch1.addConstraint(Sketcher.Constraint("Horizontal", 49))
sketch1.addConstraint(Sketcher.Constraint("Vertical", 50))
sketch1.addConstraint(Sketcher.Constraint("Horizontal", 51))
sketch1.addConstraint(Sketcher.Constraint("Vertical", 52))
sketch1.addConstraint(Sketcher.Constraint("Horizontal", 53))
sketch1.addConstraint(Sketcher.Constraint("Vertical", 54))
sketch1.addConstraint(Sketcher.Constraint("Horizontal", 55))
sketch1.addConstraint(Sketcher.Constraint("Vertical", 56))
sketch1.addConstraint(Sketcher.Constraint("Horizontal", 57))
sketch1.addConstraint(Sketcher.Constraint("Vertical", 58))
sketch1.addConstraint(Sketcher.Constraint("Horizontal", 59))
sketch1.addConstraint(Sketcher.Constraint("Vertical", 60))
sketch1.addConstraint(Sketcher.Constraint("Horizontal", 61))
sketch1.addConstraint(Sketcher.Constraint("Vertical", 62))
sketch1.addConstraint(Sketcher.Constraint("Horizontal", 63))
sketch1.addConstraint(Sketcher.Constraint("Vertical", 64))
sketch1.addConstraint(Sketcher.Constraint("Horizontal", 65))
sketch1.addConstraint(Sketcher.Constraint("Vertical", 66))
sketch1.addConstraint(Sketcher.Constraint("Horizontal", 67))
sketch1.addConstraint(Sketcher.Constraint("Vertical", 68))
sketch1.addConstraint(Sketcher.Constraint("Horizontal", 69))
sketch1.addConstraint(Sketcher.Constraint("Vertical", 70))
sketch1.addConstraint(Sketcher.Constraint("Horizontal", 71))
sketch1.addConstraint(Sketcher.Constraint("Vertical", 72))
sketch1.addConstraint(Sketcher.Constraint("Horizontal", 73))
sketch1.addConstraint(Sketcher.Constraint("Vertical", 74))
sketch1.addConstraint(Sketcher.Constraint("Horizontal", 75))
sketch1.addConstraint(Sketcher.Constraint("Vertical", 76))
sketch1.addConstraint(Sketcher.Constraint("Horizontal", 77))
sketch1.addConstraint(Sketcher.Constraint("Vertical", 78))
sketch1.addConstraint(Sketcher.Constraint("Horizontal", 79))
sketch1.addConstraint(Sketcher.Constraint("Vertical", 80))
sketch1.addConstraint(Sketcher.Constraint("Horizontal", 81))
sketch1.addConstraint(Sketcher.Constraint("Vertical", 82))
sketch1.addConstraint(Sketcher.Constraint("Horizontal", 83))
sketch1.addConstraint(Sketcher.Constraint("Horizontal", 1, 2, 4, 2))
sketch1.addConstraint(Sketcher.Constraint("Horizontal", 3, 2, 6, 2))
sketch1.addConstraint(Sketcher.Constraint("Horizontal", 5, 2, 8, 2))
sketch1.addConstraint(Sketcher.Constraint("Horizontal", 7, 2, 10, 2))
sketch1.addConstraint(Sketcher.Constraint("Horizontal", 9, 2, 12, 2))
sketch1.addConstraint(Sketcher.Constraint("Horizontal", 11, 2, 14, 2))
sketch1.addConstraint(Sketcher.Constraint("Horizontal", 13, 2, 16, 2))
sketch1.addConstraint(Sketcher.Constraint("Horizontal", 41, 2, 44, 2))
sketch1.addConstraint(Sketcher.Constraint("Horizontal", 43, 2, 46, 2))
sketch1.addConstraint(Sketcher.Constraint("Horizontal", 45, 2, 48, 2))
sketch1.addConstraint(Sketcher.Constraint("Horizontal", 47, 2, 50, 2))
sketch1.addConstraint(Sketcher.Constraint("Horizontal", 49, 2, 52, 2))
sketch1.addConstraint(Sketcher.Constraint("Horizontal", 51, 2, 54, 2))
sketch1.addConstraint(Sketcher.Constraint("Horizontal", 53, 2, 56, 2))
sketch1.addConstraint(Sketcher.Constraint("Horizontal", 55, 2, 58, 2))
sketch1.addConstraint(Sketcher.Constraint("Horizontal", 39, 2, 60, 2))
sketch1.addConstraint(Sketcher.Constraint("Horizontal", 37, 2, 62, 2))
sketch1.addConstraint(Sketcher.Constraint("Horizontal", 35, 2, 64, 2))
sketch1.addConstraint(Sketcher.Constraint("Horizontal", 33, 2, 66, 2))
sketch1.addConstraint(Sketcher.Constraint("Horizontal", 31, 2, 68, 2))
sketch1.addConstraint(Sketcher.Constraint("Horizontal", 29, 2, 70, 2))
sketch1.addConstraint(Sketcher.Constraint("Horizontal", 27, 2, 72, 2))
sketch1.addConstraint(Sketcher.Constraint("Horizontal", 25, 2, 74, 2))
sketch1.addConstraint(Sketcher.Constraint("Horizontal", 23, 2, 76, 2))
sketch1.addConstraint(Sketcher.Constraint("Horizontal", 21, 2, 78, 2))
sketch1.addConstraint(Sketcher.Constraint("Horizontal", 19, 2, 80, 2))
sketch1.addConstraint(Sketcher.Constraint("Horizontal", 15, 2, 82, 2))
sketch1.addConstraint(Sketcher.Constraint("Vertical", 18, 2, 21, 2))
sketch1.addConstraint(Sketcher.Constraint("Vertical", 20, 2, 23, 2))
sketch1.addConstraint(Sketcher.Constraint("Vertical", 22, 2, 25, 2))
sketch1.addConstraint(Sketcher.Constraint("Vertical", 24, 2, 27, 2))
sketch1.addConstraint(Sketcher.Constraint("Vertical", 26, 2, 29, 2))
sketch1.addConstraint(Sketcher.Constraint("Vertical", 28, 2, 31, 2))
sketch1.addConstraint(Sketcher.Constraint("Vertical", 30, 2, 33, 2))
sketch1.addConstraint(Sketcher.Constraint("Vertical", 32, 2, 35, 2))
sketch1.addConstraint(Sketcher.Constraint("Vertical", 34, 2, 37, 2))
sketch1.addConstraint(Sketcher.Constraint("Vertical", 36, 2, 39, 2))
sketch1.addConstraint(Sketcher.Constraint("Vertical", 16, 2, 41, 2))
sketch1.addConstraint(Sketcher.Constraint("Vertical", 14, 2, 43, 2))
sketch1.addConstraint(Sketcher.Constraint("Vertical", 12, 2, 45, 2))
sketch1.addConstraint(Sketcher.Constraint("Vertical", 10, 2, 47, 2))
sketch1.addConstraint(Sketcher.Constraint("Vertical", 8, 2, 49, 2))
sketch1.addConstraint(Sketcher.Constraint("Vertical", 6, 2, 51, 2))
sketch1.addConstraint(Sketcher.Constraint("Vertical", 4, 2, 53, 2))
sketch1.addConstraint(Sketcher.Constraint("Vertical", 2, 2, 55, 2))
sketch1.addConstraint(Sketcher.Constraint("Vertical", 0, 2, 57, 2))
sketch1.addConstraint(Sketcher.Constraint("Vertical", 60, 2, 63, 2))
sketch1.addConstraint(Sketcher.Constraint("Vertical", 62, 2, 65, 2))
sketch1.addConstraint(Sketcher.Constraint("Vertical", 64, 2, 67, 2))
sketch1.addConstraint(Sketcher.Constraint("Vertical", 66, 2, 69, 2))
sketch1.addConstraint(Sketcher.Constraint("Vertical", 68, 2, 71, 2))
sketch1.addConstraint(Sketcher.Constraint("Vertical", 70, 2, 73, 2))
sketch1.addConstraint(Sketcher.Constraint("Vertical", 72, 2, 75, 2))
sketch1.addConstraint(Sketcher.Constraint("Vertical", 74, 2, 77, 2))
sketch1.addConstraint(Sketcher.Constraint("Vertical", 76, 2, 79, 2))
sketch1.addConstraint(Sketcher.Constraint("Vertical", 78, 2, 81, 2))
sketch1.addConstraint(Sketcher.Constraint("Equal", 1, 5))
sketch1.addConstraint(Sketcher.Constraint("Equal", 3, 7))
sketch1.addConstraint(Sketcher.Constraint("Equal", 5, 9))
sketch1.addConstraint(Sketcher.Constraint("Equal", 7, 11))
sketch1.addConstraint(Sketcher.Constraint("Equal", 9, 13))
sketch1.addConstraint(Sketcher.Constraint("Equal", 11, 15))
sketch1.addConstraint(Sketcher.Constraint("Equal", 39, 61))
sketch1.addConstraint(Sketcher.Constraint("Equal", 57, 83))
sketch1.addConstraint(Sketcher.Constraint("Equal", 81, 0))
sketch1.addConstraint(Sketcher.Constraint("Equal", 83, 20))
sketch1.addConstraint(Sketcher.Constraint("Equal", 55, 22))
sketch1.addConstraint(Sketcher.Constraint("Equal", 20, 24))
sketch1.addConstraint(Sketcher.Constraint("Equal", 22, 26))
sketch1.addConstraint(Sketcher.Constraint("Equal", 24, 28))
sketch1.addConstraint(Sketcher.Constraint("Equal", 26, 30))
sketch1.addConstraint(Sketcher.Constraint("Equal", 28, 32))
sketch1.addConstraint(Sketcher.Constraint("Equal", 30, 34))
sketch1.addConstraint(Sketcher.Constraint("Equal", 32, 36))
sketch1.addConstraint(Sketcher.Constraint("Equal", 34, 38))
sketch1.addConstraint(Sketcher.Constraint("Equal", 16, 42))
sketch1.addConstraint(Sketcher.Constraint("Equal", 38, 60))
sketch1.addConstraint(Sketcher.Constraint("DistanceX", 1, 2, 1, 1, Q("20 mm")))
sketch1.addConstraint(Sketcher.Constraint("DistanceX", 19, 2, 19, 1, Q("3 mm")))
sketch1.addConstraint(Sketcher.Constraint("DistanceX", 3, 2, 3, 1, Q("19.9 mm")))
sketch1.addConstraint(Sketcher.Constraint("DistanceY", 18, 2, 18, 1, Q("27.6 mm")))
sketch1.addConstraint(Sketcher.Constraint("DistanceX", 17, 2, 17, 1, Q("14.4 mm")))
sketch1.addConstraint(Sketcher.Constraint("DistanceX", -1, 1, 0, 2, Q("58.6094 mm")))
sketch1.addConstraint(Sketcher.Constraint("DistanceY", -1, 1, 0, 2, Q("169.8435 mm")))
pad1 = body.newObject("PartDesign::Pad", "Pad")
pad1.Profile = sketch1
pad1.Length = 3

# Sketch on XY plane
sketch2 = body.newObject("Sketcher::SketchObject", "Sketch001")
sketch2.AttachmentSupport = (doc.getObject("XY_Plane"), [""])
sketch2.MapMode = "FlatFace"
sketch2.addGeometry(Part.LineSegment(App.Vector(-41, 55, 0), App.Vector(-41, 35, 0)), False)
sketch2.addGeometry(Part.LineSegment(App.Vector(-41, 35, 0), App.Vector(4, 35, 0)), False)
sketch2.addGeometry(Part.LineSegment(App.Vector(4, 35, 0), App.Vector(4, 55, 0)), False)
sketch2.addGeometry(Part.LineSegment(App.Vector(4, 55, 0), App.Vector(-41, 55, 0)), False)
sketch2.addConstraint(Sketcher.Constraint("Coincident", 0, 2, 1, 1))
sketch2.addConstraint(Sketcher.Constraint("Coincident", 1, 2, 2, 1))
sketch2.addConstraint(Sketcher.Constraint("Coincident", 2, 2, 3, 1))
sketch2.addConstraint(Sketcher.Constraint("Coincident", 3, 2, 0, 1))
sketch2.addConstraint(Sketcher.Constraint("Vertical", 0))
sketch2.addConstraint(Sketcher.Constraint("Horizontal", 1))
sketch2.addConstraint(Sketcher.Constraint("Vertical", 2))
sketch2.addConstraint(Sketcher.Constraint("Horizontal", 3))
sketch2.addConstraint(Sketcher.Constraint("DistanceX", 1, 1, 1, 2, Q("45 mm")))
sketch2.addConstraint(Sketcher.Constraint("DistanceY", 0, 2, 0, 1, Q("19.8 mm")))
sketch2.addConstraint(Sketcher.Constraint("DistanceX", 0, 2, -1, 1, Q("40.8906 mm")))
sketch2.addConstraint(Sketcher.Constraint("DistanceY", -1, 1, 0, 2, Q("34.9435 mm")))
pocket1 = body.newObject("PartDesign::Pocket", "Pocket")
pocket1.Profile = sketch2
pocket1.Length = 3
pocket1.Reversed = True

# Sketch on XY plane
sketch3 = body.newObject("Sketcher::SketchObject", "Sketch002")
sketch3.AttachmentSupport = (doc.getObject("XY_Plane"), [""])
sketch3.MapMode = "FlatFace"
sketch3.AttachmentOffset = App.Placement(App.Vector(0, 0, 3), App.Rotation())
sketch3.addGeometry(Part.Circle(App.Vector(43.6, 49.6, 0), App.Vector(0, 0, 1), 2.5), False)
sketch3.addGeometry(Part.Circle(App.Vector(-26.6, -30, 0), App.Vector(0, 0, 1), 2.5), False)
sketch3.addGeometry(Part.Circle(App.Vector(-36, 119.7, 0), App.Vector(0, 0, 1), 2.5), False)
sketch3.addGeometry(Part.Circle(App.Vector(-106.1, 40.1, 0), App.Vector(0, 0, 1), 2.5), False)
sketch3.addConstraint(Sketcher.Constraint("Equal", 0, 1))
sketch3.addConstraint(Sketcher.Constraint("Equal", 1, 2))
sketch3.addConstraint(Sketcher.Constraint("Equal", 2, 3))
sketch3.addConstraint(Sketcher.Constraint("Diameter", 0, Q("5 mm")))
sketch3.addConstraint(Sketcher.Constraint("DistanceX", 2, 3, -1, 1, Q("36 mm")))
sketch3.addConstraint(Sketcher.Constraint("DistanceY", 1, 3, 2, 3, Q("149.704 mm")))
sketch3.addConstraint(Sketcher.Constraint("DistanceY", 3, 3, 2, 3, Q("79.561 mm")))
sketch3.addConstraint(Sketcher.Constraint("DistanceX", 3, 3, 0, 3, Q("149.704 mm")))
sketch3.addConstraint(Sketcher.Constraint("DistanceX", -1, 1, 0, 3, Q("43.5614 mm")))
sketch3.addConstraint(Sketcher.Constraint("DistanceY", -1, 1, 0, 3, Q("49.5527 mm")))
sketch3.addConstraint(Sketcher.Constraint("DistanceX", 1, 3, -1, 1, Q("26.5813 mm")))
sketch3.addConstraint(Sketcher.Constraint("DistanceY", 1, 3, -1, 1, Q("30.0085 mm")))
pocket2 = body.newObject("PartDesign::Pocket", "Pocket001")
pocket2.Profile = sketch3
pocket2.Length = 3

# Sketch on XY plane
sketch4 = body.newObject("Sketcher::SketchObject", "Sketch003")
sketch4.AttachmentSupport = (doc.getObject("XY_Plane"), [""])
sketch4.MapMode = "FlatFace"
sketch4.AttachmentOffset = App.Placement(App.Vector(0, 0, 3), App.Rotation())
sketch4.addGeometry(Part.Circle(App.Vector(-45.9, 40.9, 0), App.Vector(0, 0, 1), 2), False)
sketch4.addGeometry(Part.Circle(App.Vector(9.6, 48.7, 0), App.Vector(0, 0, 1), 2), False)
sketch4.addConstraint(Sketcher.Constraint("Equal", 0, 1))
sketch4.addConstraint(Sketcher.Constraint("Diameter", 0, Q("4 mm")))
sketch4.addConstraint(Sketcher.Constraint("DistanceX", 0, 3, 1, 3, Q("55.5 mm")))
sketch4.addConstraint(Sketcher.Constraint("DistanceY", 0, 3, 1, 3, Q("7.8 mm")))
sketch4.addConstraint(Sketcher.Constraint("DistanceX", 0, 3, -1, 1, Q("45.8906 mm")))
sketch4.addConstraint(Sketcher.Constraint("DistanceY", -1, 1, 0, 3, Q("40.9435 mm")))
pocket3 = body.newObject("PartDesign::Pocket", "Pocket002")
pocket3.Profile = sketch4
pocket3.Length = 3

doc.recompute()
